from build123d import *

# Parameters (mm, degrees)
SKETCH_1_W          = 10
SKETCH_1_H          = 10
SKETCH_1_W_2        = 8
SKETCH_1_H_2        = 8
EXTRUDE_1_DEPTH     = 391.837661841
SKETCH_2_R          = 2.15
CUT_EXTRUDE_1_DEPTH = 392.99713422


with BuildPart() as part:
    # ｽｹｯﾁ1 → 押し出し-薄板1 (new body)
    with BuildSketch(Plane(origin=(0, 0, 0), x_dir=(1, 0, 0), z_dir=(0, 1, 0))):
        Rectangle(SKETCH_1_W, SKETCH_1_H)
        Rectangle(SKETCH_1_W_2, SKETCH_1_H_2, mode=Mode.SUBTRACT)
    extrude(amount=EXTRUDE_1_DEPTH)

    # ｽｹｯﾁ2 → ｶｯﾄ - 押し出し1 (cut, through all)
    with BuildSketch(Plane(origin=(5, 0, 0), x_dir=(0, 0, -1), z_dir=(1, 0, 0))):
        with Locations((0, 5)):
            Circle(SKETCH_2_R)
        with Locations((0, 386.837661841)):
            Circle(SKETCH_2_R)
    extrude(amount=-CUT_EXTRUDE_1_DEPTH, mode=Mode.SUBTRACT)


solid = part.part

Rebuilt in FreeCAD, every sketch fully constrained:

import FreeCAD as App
import Part
import Sketcher

V = App.Vector

doc = App.newDocument("Part")
body = doc.addObject("PartDesign::Body", "Body")

sketch1 = body.newObject("Sketcher::SketchObject", "Sketch")
sketch1.AttachmentSupport = (doc.getObject("XZ_Plane"), [""])
sketch1.MapMode = "FlatFace"
sketch1.addGeometry([
    Part.LineSegment(V(-5, -5, 0), V(-5, 5, 0)),
    Part.LineSegment(V(-5, 5, 0), V(5, 5, 0)),
    Part.LineSegment(V(5, 5, 0), V(5, -5, 0)),
    Part.LineSegment(V(5, -5, 0), V(-5, -5, 0)),
    Part.LineSegment(V(4, 4, 0), V(-4, 4, 0)),
    Part.LineSegment(V(-4, 4, 0), V(-4, -4, 0)),
    Part.LineSegment(V(-4, -4, 0), V(4, -4, 0)),
    Part.LineSegment(V(4, -4, 0), V(4, 4, 0)),
], False)
sketch1.addConstraint([
    Sketcher.Constraint("Coincident", 0, 2, 1, 1),
    Sketcher.Constraint("Coincident", 1, 2, 2, 1),
    Sketcher.Constraint("Coincident", 2, 2, 3, 1),
    Sketcher.Constraint("Coincident", 3, 2, 0, 1),
    Sketcher.Constraint("Coincident", 4, 2, 5, 1),
    Sketcher.Constraint("Coincident", 5, 2, 6, 1),
    Sketcher.Constraint("Coincident", 6, 2, 7, 1),
    Sketcher.Constraint("Coincident", 7, 2, 4, 1),
    Sketcher.Constraint("Vertical", 0),
    Sketcher.Constraint("Horizontal", 1),
    Sketcher.Constraint("Vertical", 2),
    Sketcher.Constraint("Horizontal", 3),
    Sketcher.Constraint("Horizontal", 4),
    Sketcher.Constraint("Vertical", 5),
    Sketcher.Constraint("Horizontal", 6),
    Sketcher.Constraint("Vertical", 7),
    Sketcher.Constraint("Symmetric", 0, 2, 2, 2, -1, 1),
    Sketcher.Constraint("Symmetric", 4, 2, 6, 2, -1, 1),
    Sketcher.Constraint("Equal", 3, 0),
    Sketcher.Constraint("Equal", 6, 5),
    Sketcher.Constraint("DistanceX", 1, 1, 1, 2, 10.0),
    Sketcher.Constraint("DistanceX", 4, 2, 4, 1, 8.0),
])
pad1 = body.newObject("PartDesign::Pad", "Pad")
pad1.Profile = sketch1
pad1.Length = 391.837662
pad1.Reversed = True

sketch2 = body.newObject("Sketcher::SketchObject", "Sketch001")
sketch2.AttachmentSupport = (doc.getObject("YZ_Plane"), [""])
sketch2.MapMode = "FlatFace"
sketch2.AttachmentOffset = App.Placement(V(0, 0, 5), App.Rotation())
sketch2.addGeometry([
    Part.Circle(V(5, 0, 0), V(0, 0, 1), 2.1),
    Part.Circle(V(386.8, 0, 0), V(0, 0, 1), 2.1),
], False)
sketch2.addConstraint([
    Sketcher.Constraint("Equal", 0, 1),
    Sketcher.Constraint("PointOnObject", 0, 3, -1),
    Sketcher.Constraint("PointOnObject", 1, 3, -1),
    Sketcher.Constraint("Diameter", 0, 4.3),
    Sketcher.Constraint("DistanceX", -1, 1, 0, 3, 5.0),
    Sketcher.Constraint("DistanceX", -1, 1, 1, 3, 386.837662),
])
pocket1 = body.newObject("PartDesign::Pocket", "Pocket")
pocket1.Profile = sketch2
pocket1.Type = "ThroughAll"

doc.recompute()
